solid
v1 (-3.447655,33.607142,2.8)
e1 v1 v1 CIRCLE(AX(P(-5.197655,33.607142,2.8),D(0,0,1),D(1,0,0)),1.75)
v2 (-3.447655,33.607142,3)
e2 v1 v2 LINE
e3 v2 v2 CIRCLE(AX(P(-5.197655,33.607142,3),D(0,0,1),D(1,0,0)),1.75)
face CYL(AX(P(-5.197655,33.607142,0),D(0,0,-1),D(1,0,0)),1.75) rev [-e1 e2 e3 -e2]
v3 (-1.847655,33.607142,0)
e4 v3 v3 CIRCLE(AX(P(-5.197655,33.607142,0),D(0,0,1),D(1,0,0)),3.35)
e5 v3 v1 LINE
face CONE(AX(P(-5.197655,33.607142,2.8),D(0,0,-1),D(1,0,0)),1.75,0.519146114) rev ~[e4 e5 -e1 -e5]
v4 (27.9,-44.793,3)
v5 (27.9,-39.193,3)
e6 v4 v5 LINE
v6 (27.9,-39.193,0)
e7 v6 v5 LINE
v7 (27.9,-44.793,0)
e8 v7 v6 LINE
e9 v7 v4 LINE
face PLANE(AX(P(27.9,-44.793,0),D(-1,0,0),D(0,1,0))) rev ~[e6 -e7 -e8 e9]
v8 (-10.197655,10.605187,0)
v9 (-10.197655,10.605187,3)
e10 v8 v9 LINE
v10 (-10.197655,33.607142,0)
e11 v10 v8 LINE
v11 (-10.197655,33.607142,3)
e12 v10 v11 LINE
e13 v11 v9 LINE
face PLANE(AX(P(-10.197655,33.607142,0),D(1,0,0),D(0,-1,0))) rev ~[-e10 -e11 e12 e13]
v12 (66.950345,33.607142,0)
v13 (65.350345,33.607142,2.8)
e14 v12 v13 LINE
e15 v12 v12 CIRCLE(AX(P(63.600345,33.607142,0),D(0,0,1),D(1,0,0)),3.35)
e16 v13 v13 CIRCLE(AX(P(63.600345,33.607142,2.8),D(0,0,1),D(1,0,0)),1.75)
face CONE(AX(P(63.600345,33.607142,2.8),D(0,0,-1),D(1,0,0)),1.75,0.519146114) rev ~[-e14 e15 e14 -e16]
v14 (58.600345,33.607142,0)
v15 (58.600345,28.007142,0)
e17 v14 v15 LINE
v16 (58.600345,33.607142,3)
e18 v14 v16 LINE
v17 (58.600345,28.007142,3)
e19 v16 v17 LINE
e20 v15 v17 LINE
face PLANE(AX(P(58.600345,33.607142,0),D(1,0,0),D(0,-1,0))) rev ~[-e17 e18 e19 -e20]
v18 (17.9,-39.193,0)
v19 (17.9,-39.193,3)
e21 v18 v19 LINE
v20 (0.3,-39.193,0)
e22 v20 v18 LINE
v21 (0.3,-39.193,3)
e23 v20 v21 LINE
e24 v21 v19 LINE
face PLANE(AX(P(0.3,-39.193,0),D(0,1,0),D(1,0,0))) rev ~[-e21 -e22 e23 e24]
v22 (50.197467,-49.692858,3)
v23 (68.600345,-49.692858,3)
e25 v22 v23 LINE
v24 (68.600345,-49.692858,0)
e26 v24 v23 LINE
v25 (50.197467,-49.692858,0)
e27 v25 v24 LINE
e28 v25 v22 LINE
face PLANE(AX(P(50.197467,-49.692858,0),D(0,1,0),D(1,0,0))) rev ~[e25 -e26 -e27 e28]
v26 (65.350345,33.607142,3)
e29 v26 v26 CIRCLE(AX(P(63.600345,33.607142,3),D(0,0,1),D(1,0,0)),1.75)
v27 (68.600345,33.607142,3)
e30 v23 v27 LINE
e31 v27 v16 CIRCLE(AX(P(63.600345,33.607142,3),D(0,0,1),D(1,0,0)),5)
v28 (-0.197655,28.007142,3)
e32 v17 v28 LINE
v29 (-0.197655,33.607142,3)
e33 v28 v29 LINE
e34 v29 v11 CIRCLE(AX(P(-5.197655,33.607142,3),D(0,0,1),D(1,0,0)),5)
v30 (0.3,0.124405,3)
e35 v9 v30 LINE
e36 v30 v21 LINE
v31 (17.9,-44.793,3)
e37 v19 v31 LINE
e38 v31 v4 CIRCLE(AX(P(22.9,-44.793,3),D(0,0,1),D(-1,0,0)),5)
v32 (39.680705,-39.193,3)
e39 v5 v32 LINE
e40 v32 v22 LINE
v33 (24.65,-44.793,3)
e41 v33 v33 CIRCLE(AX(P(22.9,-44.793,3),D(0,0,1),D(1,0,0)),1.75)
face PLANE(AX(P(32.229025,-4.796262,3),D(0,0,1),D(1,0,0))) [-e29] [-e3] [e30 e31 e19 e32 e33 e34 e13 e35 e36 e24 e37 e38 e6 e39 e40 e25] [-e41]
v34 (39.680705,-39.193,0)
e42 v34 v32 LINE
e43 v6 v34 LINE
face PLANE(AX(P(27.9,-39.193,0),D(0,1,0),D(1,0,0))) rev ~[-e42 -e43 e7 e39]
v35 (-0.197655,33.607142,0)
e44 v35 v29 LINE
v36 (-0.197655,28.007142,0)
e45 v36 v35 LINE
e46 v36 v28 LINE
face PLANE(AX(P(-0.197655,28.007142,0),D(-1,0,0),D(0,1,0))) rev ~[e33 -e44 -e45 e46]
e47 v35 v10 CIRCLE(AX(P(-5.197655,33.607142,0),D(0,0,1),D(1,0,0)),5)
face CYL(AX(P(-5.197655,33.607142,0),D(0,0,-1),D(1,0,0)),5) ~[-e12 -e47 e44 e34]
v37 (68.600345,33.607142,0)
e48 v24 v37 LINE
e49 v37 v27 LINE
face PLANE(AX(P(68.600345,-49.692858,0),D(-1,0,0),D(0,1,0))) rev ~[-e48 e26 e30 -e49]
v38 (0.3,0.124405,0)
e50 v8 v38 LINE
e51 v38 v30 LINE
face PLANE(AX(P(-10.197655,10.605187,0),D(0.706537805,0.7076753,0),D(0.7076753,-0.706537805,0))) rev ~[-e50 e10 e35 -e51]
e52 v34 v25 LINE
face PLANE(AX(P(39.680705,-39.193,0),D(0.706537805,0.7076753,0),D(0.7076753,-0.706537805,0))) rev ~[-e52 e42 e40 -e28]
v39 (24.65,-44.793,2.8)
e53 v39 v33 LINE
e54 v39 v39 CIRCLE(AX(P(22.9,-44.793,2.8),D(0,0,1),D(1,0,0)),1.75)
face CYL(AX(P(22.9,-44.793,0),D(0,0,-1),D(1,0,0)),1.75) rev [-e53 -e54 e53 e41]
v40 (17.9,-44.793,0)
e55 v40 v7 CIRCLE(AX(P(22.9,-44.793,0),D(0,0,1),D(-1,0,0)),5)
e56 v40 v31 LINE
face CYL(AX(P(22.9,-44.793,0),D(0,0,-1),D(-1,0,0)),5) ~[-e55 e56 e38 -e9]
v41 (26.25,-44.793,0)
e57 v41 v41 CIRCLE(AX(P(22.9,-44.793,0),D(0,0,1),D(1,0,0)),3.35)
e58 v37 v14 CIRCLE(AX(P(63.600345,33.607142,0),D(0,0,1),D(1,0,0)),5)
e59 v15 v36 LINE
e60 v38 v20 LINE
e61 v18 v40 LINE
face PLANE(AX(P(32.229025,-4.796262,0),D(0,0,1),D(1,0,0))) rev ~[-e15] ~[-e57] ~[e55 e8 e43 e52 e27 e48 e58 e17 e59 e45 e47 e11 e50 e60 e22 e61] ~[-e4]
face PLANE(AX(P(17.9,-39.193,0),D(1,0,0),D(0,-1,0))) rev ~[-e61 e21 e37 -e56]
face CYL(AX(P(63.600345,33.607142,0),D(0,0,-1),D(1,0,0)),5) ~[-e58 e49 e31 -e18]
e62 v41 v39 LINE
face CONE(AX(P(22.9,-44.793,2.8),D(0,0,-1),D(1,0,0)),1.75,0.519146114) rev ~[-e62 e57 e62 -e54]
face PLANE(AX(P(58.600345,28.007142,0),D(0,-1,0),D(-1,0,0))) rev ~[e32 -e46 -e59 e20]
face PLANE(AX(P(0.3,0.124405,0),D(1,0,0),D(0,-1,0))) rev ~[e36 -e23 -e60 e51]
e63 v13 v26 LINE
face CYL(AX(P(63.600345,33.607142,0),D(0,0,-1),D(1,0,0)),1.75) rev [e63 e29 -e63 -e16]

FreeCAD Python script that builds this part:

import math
import FreeCAD as App
import Part
import Sketcher

V = App.Vector


def edges_at(feature, points):
    """Names of the edges that pass closest to the given points."""
    edges = feature.Shape.Edges
    near = lambda p: min(range(len(edges)), key=lambda i: edges[i].distToShape(Part.Vertex(*p))[0])
    return sorted({f"Edge{near(p) + 1}" for p in points})

doc = App.newDocument("Part")
body = doc.addObject("PartDesign::Body", "Body")

sketch1 = body.newObject("Sketcher::SketchObject", "Sketch")
sketch1.AttachmentSupport = (doc.getObject("XY_Plane"), [""])
sketch1.MapMode = "FlatFace"
sketch1.addGeometry(Part.LineSegment(V(17.9, -39.2, 0), V(17.9, -44.8, 0)), False)
sketch1.addGeometry(Part.ArcOfCircle(Part.Circle(V(22.9, -44.8, 0), V(0, 0, 1), 5), math.radians(180), math.radians(360)), False)
sketch1.addGeometry(Part.LineSegment(V(27.9, -44.8, 0), V(27.9, -39.2, 0)), False)
sketch1.addGeometry(Part.LineSegment(V(27.9, -39.2, 0), V(39.7, -39.2, 0)), False)
sketch1.addGeometry(Part.LineSegment(V(39.7, -39.2, 0), V(50.2, -49.7, 0)), False)
sketch1.addGeometry(Part.LineSegment(V(50.2, -49.7, 0), V(68.6, -49.7, 0)), False)
sketch1.addGeometry(Part.LineSegment(V(68.6, -49.7, 0), V(68.6, 33.6, 0)), False)
sketch1.addGeometry(Part.ArcOfCircle(Part.Circle(V(63.6, 33.6, 0), V(0, 0, 1), 5), math.radians(0), math.radians(180)), False)
sketch1.addGeometry(Part.LineSegment(V(58.6, 33.6, 0), V(58.6, 28, 0)), False)
sketch1.addGeometry(Part.LineSegment(V(58.6, 28, 0), V(-0.2, 28, 0)), False)
sketch1.addGeometry(Part.LineSegment(V(-0.2, 28, 0), V(-0.2, 33.6, 0)), False)
sketch1.addGeometry(Part.ArcOfCircle(Part.Circle(V(-5.2, 33.6, 0), V(0, 0, 1), 5), math.radians(0), math.radians(180)), False)
sketch1.addGeometry(Part.LineSegment(V(-10.2, 33.6, 0), V(-10.2, 10.6, 0)), False)
sketch1.addGeometry(Part.LineSegment(V(-10.2, 10.6, 0), V(0.3, 0.1, 0)), False)
sketch1.addGeometry(Part.LineSegment(V(0.3, 0.1, 0), V(0.3, -39.2, 0)), False)
sketch1.addGeometry(Part.LineSegment(V(0.3, -39.2, 0), V(17.9, -39.2, 0)), False)
sketch1.addGeometry(Part.Circle(V(22.9, -44.8, 0), V(0, 0, 1), 1.8), False)
sketch1.addGeometry(Part.Circle(V(-5.2, 33.6, 0), V(0, 0, 1), 1.8), False)
sketch1.addGeometry(Part.Circle(V(63.6, 33.6, 0), V(0, 0, 1), 1.8), False)
sketch1.addConstraint(Sketcher.Constraint("Tangent", 0, 2, 1, 1))
sketch1.addConstraint(Sketcher.Constraint("Tangent", 1, 2, 2, 1))
sketch1.addConstraint(Sketcher.Constraint("Coincident", 2, 2, 3, 1))
sketch1.addConstraint(Sketcher.Constraint("Coincident", 3, 2, 4, 1))
sketch1.addConstraint(Sketcher.Constraint("Coincident", 4, 2, 5, 1))
sketch1.addConstraint(Sketcher.Constraint("Coincident", 5, 2, 6, 1))
sketch1.addConstraint(Sketcher.Constraint("Tangent", 6, 2, 7, 1))
sketch1.addConstraint(Sketcher.Constraint("Tangent", 7, 2, 8, 1))
sketch1.addConstraint(Sketcher.Constraint("Coincident", 8, 2, 9, 1))
sketch1.addConstraint(Sketcher.Constraint("Coincident", 9, 2, 10, 1))
sketch1.addConstraint(Sketcher.Constraint("Tangent", 10, 2, 11, 1))
sketch1.addConstraint(Sketcher.Constraint("Tangent", 11, 2, 12, 1))
sketch1.addConstraint(Sketcher.Constraint("Coincident", 12, 2, 13, 1))
sketch1.addConstraint(Sketcher.Constraint("Coincident", 13, 2, 14, 1))
sketch1.addConstraint(Sketcher.Constraint("Coincident", 14, 2, 15, 1))
sketch1.addConstraint(Sketcher.Constraint("Coincident", 15, 2, 0, 1))
sketch1.addConstraint(Sketcher.Constraint("Vertical", 0))
sketch1.addConstraint(Sketcher.Constraint("Vertical", 2))
sketch1.addConstraint(Sketcher.Constraint("Horizontal", 3))
sketch1.addConstraint(Sketcher.Constraint("Horizontal", 5))
sketch1.addConstraint(Sketcher.Constraint("Vertical", 6))
sketch1.addConstraint(Sketcher.Constraint("Vertical", 8))
sketch1.addConstraint(Sketcher.Constraint("Horizontal", 9))
sketch1.addConstraint(Sketcher.Constraint("Vertical", 10))
sketch1.addConstraint(Sketcher.Constraint("Vertical", 12))
sketch1.addConstraint(Sketcher.Constraint("Vertical", 14))
sketch1.addConstraint(Sketcher.Constraint("Horizontal", 15))
sketch1.addConstraint(Sketcher.Constraint("Coincident", 16, 3, 1, 3))
sketch1.addConstraint(Sketcher.Constraint("Coincident", 17, 3, 11, 3))
sketch1.addConstraint(Sketcher.Constraint("Coincident", 18, 3, 7, 3))
sketch1.addConstraint(Sketcher.Constraint("Equal", 1, 7))
sketch1.addConstraint(Sketcher.Constraint("Equal", 7, 11))
sketch1.addConstraint(Sketcher.Constraint("Equal", 16, 17))
sketch1.addConstraint(Sketcher.Constraint("Equal", 17, 18))
sketch1.addConstraint(Sketcher.Constraint("Parallel", 4, 13))
sketch1.addConstraint(Sketcher.Constraint("Horizontal", 7, 3, 11, 3))
sketch1.addConstraint(Sketcher.Constraint("Horizontal", 3, 2, 14, 2))
sketch1.addConstraint(Sketcher.Constraint("Equal", 2, 8))
sketch1.addConstraint(Sketcher.Constraint("Radius", 1, 5.0))
sketch1.addConstraint(Sketcher.Constraint("Diameter", 16, 3.5))
sketch1.addConstraint(Sketcher.Constraint("DistanceX", 15, 1, 15, 2, 17.6))
sketch1.addConstraint(Sketcher.Constraint("DistanceY", 0, 2, 0, 1, 5.6))
sketch1.addConstraint(Sketcher.Constraint("DistanceY", 6, 1, 6, 2, 83.3))
sketch1.addConstraint(Sketcher.Constraint("DistanceX", -1, 1, 1, 3, 22.9))
sketch1.addConstraint(Sketcher.Constraint("DistanceX", 9, 2, 9, 1, 58.798))
sketch1.addConstraint(Sketcher.Constraint("Distance", 4, 14.861))
sketch1.addConstraint(Sketcher.Constraint("Distance", 13, 14.834))
sketch1.addConstraint(Sketcher.Constraint("DistanceY", 1, 3, -1, 1, 44.793))
sketch1.addConstraint(Sketcher.Constraint("DistanceX", 3, 1, 3, 2, 11.780705))
sketch1.addConstraint(Sketcher.Constraint("DistanceX", 5, 1, 5, 2, 18.402877))
sketch1.addConstraint(Sketcher.Constraint("DistanceY", 12, 2, 12, 1, 23.001954))
pad1 = body.newObject("PartDesign::Pad", "Pad")
pad1.Profile = sketch1
pad1.Length = 3
doc.recompute()

chamfer = body.newObject("PartDesign::Chamfer", "Chamfer")
chamfer.Base = (pad1, edges_at(pad1, [(21.15, -44.793, 0), (-6.948, 33.607, 0), (61.85, 33.607, 0)]))
chamfer.ChamferType = "Two distances"
chamfer.Size = 1.6
chamfer.Size2 = 2.8
chamfer.FlipDirection = True

doc.recompute()
